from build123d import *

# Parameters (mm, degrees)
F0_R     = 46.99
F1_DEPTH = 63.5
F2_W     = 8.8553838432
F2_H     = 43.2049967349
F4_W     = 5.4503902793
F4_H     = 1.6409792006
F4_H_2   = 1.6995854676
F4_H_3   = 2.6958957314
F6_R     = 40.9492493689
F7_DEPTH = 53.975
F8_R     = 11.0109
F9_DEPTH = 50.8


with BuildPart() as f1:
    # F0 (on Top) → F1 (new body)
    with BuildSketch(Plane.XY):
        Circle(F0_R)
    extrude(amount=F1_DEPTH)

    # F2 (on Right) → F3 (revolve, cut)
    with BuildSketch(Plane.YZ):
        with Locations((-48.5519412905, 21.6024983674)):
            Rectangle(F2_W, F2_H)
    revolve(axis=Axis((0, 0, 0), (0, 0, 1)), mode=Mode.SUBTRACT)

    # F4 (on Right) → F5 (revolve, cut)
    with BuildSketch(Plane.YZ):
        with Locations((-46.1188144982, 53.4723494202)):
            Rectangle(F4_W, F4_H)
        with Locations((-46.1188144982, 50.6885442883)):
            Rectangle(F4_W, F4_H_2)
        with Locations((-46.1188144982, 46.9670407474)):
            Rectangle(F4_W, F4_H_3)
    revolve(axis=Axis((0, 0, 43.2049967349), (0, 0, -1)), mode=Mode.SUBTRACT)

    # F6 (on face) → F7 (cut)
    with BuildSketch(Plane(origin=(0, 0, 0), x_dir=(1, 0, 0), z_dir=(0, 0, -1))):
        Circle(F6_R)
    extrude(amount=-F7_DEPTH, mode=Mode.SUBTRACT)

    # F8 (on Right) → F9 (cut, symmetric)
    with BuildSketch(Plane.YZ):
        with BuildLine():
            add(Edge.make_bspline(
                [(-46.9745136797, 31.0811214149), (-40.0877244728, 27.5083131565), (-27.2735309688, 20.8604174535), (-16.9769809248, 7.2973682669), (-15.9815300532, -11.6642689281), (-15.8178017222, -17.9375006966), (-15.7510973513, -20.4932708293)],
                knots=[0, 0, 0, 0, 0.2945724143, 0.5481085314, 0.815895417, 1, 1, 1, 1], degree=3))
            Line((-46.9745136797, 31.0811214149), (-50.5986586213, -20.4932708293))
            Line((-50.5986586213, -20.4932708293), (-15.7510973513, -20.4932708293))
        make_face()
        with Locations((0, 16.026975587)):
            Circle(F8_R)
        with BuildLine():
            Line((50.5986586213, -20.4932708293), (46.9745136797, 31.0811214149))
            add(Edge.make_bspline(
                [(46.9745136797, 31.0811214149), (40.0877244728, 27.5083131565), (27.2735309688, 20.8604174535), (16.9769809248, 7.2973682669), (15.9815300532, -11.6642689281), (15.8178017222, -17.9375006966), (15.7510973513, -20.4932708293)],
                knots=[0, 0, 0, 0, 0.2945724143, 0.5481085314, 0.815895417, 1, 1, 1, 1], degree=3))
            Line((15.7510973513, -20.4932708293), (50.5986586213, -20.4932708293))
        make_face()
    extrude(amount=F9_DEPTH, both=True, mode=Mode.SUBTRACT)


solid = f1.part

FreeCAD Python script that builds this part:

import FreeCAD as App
import Part
import Sketcher

V = App.Vector
Q = App.Units.Quantity

doc = App.newDocument("Part")
body = doc.addObject("PartDesign::Body", "Body")

# Sketch on XY plane
sketch1 = doc.addObject("Sketcher::SketchObject", "Sketch")
body.addObject(sketch1)
sketch1.AttachmentSupport = (doc.XY_Plane, [""])
sketch1.MapMode = "FlatFace"
sketch1.addGeometry(Part.Circle(V(0, 0, 0), V(0, 0, 1), 46.99), False)
sketch1.addConstraint(Sketcher.Constraint("Coincident", 0, 3, -1, 1))
sketch1.addConstraint(Sketcher.Constraint("Diameter", 0, Q("3.7 in")))
pad1 = doc.addObject("PartDesign::Pad", "Pad")
body.addObject(pad1)
pad1.Profile = sketch1
pad1.Length = Q("2.5 in")

# Sketch on YZ plane
sketch2 = doc.addObject("Sketcher::SketchObject", "Sketch001")
body.addObject(sketch2)
sketch2.AttachmentSupport = (doc.YZ_Plane, [""])
sketch2.MapMode = "FlatFace"
sketch2.addGeometry(Part.LineSegment(V(-52.979633, 43.204997, 0), V(-52.979633, 0, 0)), False)
sketch2.addGeometry(Part.LineSegment(V(-52.979633, 0, 0), V(-44.124249, 0, 0)), False)
sketch2.addGeometry(Part.LineSegment(V(-44.124249, 0, 0), V(-44.124249, 43.204997, 0)), False)
sketch2.addGeometry(Part.LineSegment(V(-44.124249, 43.204997, 0), V(-52.979633, 43.204997, 0)), False)
sketch2.addConstraint(Sketcher.Constraint("Coincident", 0, 2, 1, 1))
sketch2.addConstraint(Sketcher.Constraint("Coincident", 1, 2, 2, 1))
sketch2.addConstraint(Sketcher.Constraint("Coincident", 2, 2, 3, 1))
sketch2.addConstraint(Sketcher.Constraint("Coincident", 3, 2, 0, 1))
sketch2.addConstraint(Sketcher.Constraint("Vertical", 0))
sketch2.addConstraint(Sketcher.Constraint("Horizontal", 1))
sketch2.addConstraint(Sketcher.Constraint("Vertical", 2))
sketch2.addConstraint(Sketcher.Constraint("Horizontal", 3))
sketch2.addConstraint(Sketcher.Constraint("PointOnObject", 0, 2, -1))
sketch2.addConstraint(Sketcher.Constraint("DistanceX", 1, 1, 1, 2, Q("8.855384 mm")))
sketch2.addConstraint(Sketcher.Constraint("DistanceY", 0, 2, 0, 1, Q("43.204997 mm")))
sketch2.addConstraint(Sketcher.Constraint("DistanceX", 1, 2, -1, 1, Q("44.124249 mm")))
groove = doc.addObject("PartDesign::Groove", "Groove")
body.addObject(groove)
groove.Profile = sketch2
groove.ReferenceAxis = (sketch2, ["V_Axis"])
groove.Angle = 360

# Sketch on YZ plane
sketch3 = doc.addObject("Sketcher::SketchObject", "Sketch002")
body.addObject(sketch3)
sketch3.AttachmentSupport = (doc.YZ_Plane, [""])
sketch3.MapMode = "FlatFace"
sketch3.addGeometry(Part.LineSegment(V(-48.84401, 54.292839, 0), V(-48.84401, 52.65186, 0)), False)
sketch3.addGeometry(Part.LineSegment(V(-48.84401, 52.65186, 0), V(-43.393619, 52.65186, 0)), False)
sketch3.addGeometry(Part.LineSegment(V(-43.393619, 52.65186, 0), V(-43.393619, 54.292839, 0)), False)
sketch3.addGeometry(Part.LineSegment(V(-43.393619, 54.292839, 0), V(-48.84401, 54.292839, 0)), False)
sketch3.addGeometry(Part.LineSegment(V(-48.84401, 51.538337, 0), V(-48.84401, 49.838752, 0)), False)
sketch3.addGeometry(Part.LineSegment(V(-48.84401, 49.838752, 0), V(-43.393619, 49.838752, 0)), False)
sketch3.addGeometry(Part.LineSegment(V(-43.393619, 49.838752, 0), V(-43.393619, 51.538337, 0)), False)
sketch3.addGeometry(Part.LineSegment(V(-43.393619, 51.538337, 0), V(-48.84401, 51.538337, 0)), False)
sketch3.addGeometry(Part.LineSegment(V(-48.84401, 48.314989, 0), V(-48.84401, 45.619093, 0)), False)
sketch3.addGeometry(Part.LineSegment(V(-48.84401, 45.619093, 0), V(-43.393619, 45.619093, 0)), False)
sketch3.addGeometry(Part.LineSegment(V(-43.393619, 45.619093, 0), V(-43.393619, 48.314989, 0)), False)
sketch3.addGeometry(Part.LineSegment(V(-43.393619, 48.314989, 0), V(-48.84401, 48.314989, 0)), False)
sketch3.addConstraint(Sketcher.Constraint("Coincident", 0, 2, 1, 1))
sketch3.addConstraint(Sketcher.Constraint("Coincident", 1, 2, 2, 1))
sketch3.addConstraint(Sketcher.Constraint("Coincident", 2, 2, 3, 1))
sketch3.addConstraint(Sketcher.Constraint("Coincident", 3, 2, 0, 1))
sketch3.addConstraint(Sketcher.Constraint("Coincident", 4, 2, 5, 1))
sketch3.addConstraint(Sketcher.Constraint("Coincident", 5, 2, 6, 1))
sketch3.addConstraint(Sketcher.Constraint("Coincident", 6, 2, 7, 1))
sketch3.addConstraint(Sketcher.Constraint("Coincident", 7, 2, 4, 1))
sketch3.addConstraint(Sketcher.Constraint("Coincident", 8, 2, 9, 1))
sketch3.addConstraint(Sketcher.Constraint("Coincident", 9, 2, 10, 1))
sketch3.addConstraint(Sketcher.Constraint("Coincident", 10, 2, 11, 1))
sketch3.addConstraint(Sketcher.Constraint("Coincident", 11, 2, 8, 1))
sketch3.addConstraint(Sketcher.Constraint("Vertical", 0))
sketch3.addConstraint(Sketcher.Constraint("Horizontal", 1))
sketch3.addConstraint(Sketcher.Constraint("Vertical", 2))
sketch3.addConstraint(Sketcher.Constraint("Horizontal", 3))
sketch3.addConstraint(Sketcher.Constraint("Vertical", 4))
sketch3.addConstraint(Sketcher.Constraint("Horizontal", 5))
sketch3.addConstraint(Sketcher.Constraint("Vertical", 6))
sketch3.addConstraint(Sketcher.Constraint("Horizontal", 7))
sketch3.addConstraint(Sketcher.Constraint("Vertical", 8))
sketch3.addConstraint(Sketcher.Constraint("Horizontal", 9))
sketch3.addConstraint(Sketcher.Constraint("Vertical", 10))
sketch3.addConstraint(Sketcher.Constraint("Horizontal", 11))
sketch3.addConstraint(Sketcher.Constraint("Vertical", 3, 2, 4, 2))
sketch3.addConstraint(Sketcher.Constraint("Vertical", 2, 2, 5, 2))
sketch3.addConstraint(Sketcher.Constraint("Vertical", 7, 2, 8, 2))
sketch3.addConstraint(Sketcher.Constraint("Vertical", 6, 2, 9, 2))
sketch3.addConstraint(Sketcher.Constraint("DistanceX", 1, 1, 1, 2, Q("5.45039 mm")))
sketch3.addConstraint(Sketcher.Constraint("DistanceY", 0, 2, 0, 1, Q("1.640979 mm")))
sketch3.addConstraint(Sketcher.Constraint("DistanceY", 6, 2, 2, 2, Q("2.754502 mm")))
sketch3.addConstraint(Sketcher.Constraint("DistanceY", 4, 2, 4, 1, Q("1.699585 mm")))
sketch3.addConstraint(Sketcher.Constraint("DistanceY", 8, 2, 8, 1, Q("2.695896 mm")))
sketch3.addConstraint(Sketcher.Constraint("DistanceX", 0, 2, -1, 1, Q("48.84401 mm")))
sketch3.addConstraint(Sketcher.Constraint("DistanceY", -1, 1, 0, 2, Q("52.65186 mm")))
sketch3.addConstraint(Sketcher.Constraint("DistanceY", -1, 1, 10, 2, Q("48.314989 mm")))
groove2 = doc.addObject("PartDesign::Groove", "Groove001")
body.addObject(groove2)
groove2.Profile = sketch3
groove2.ReferenceAxis = (sketch3, ["V_Axis"])
groove2.Angle = 360

# Sketch on XY plane
sketch4 = doc.addObject("Sketcher::SketchObject", "Sketch003")
body.addObject(sketch4)
sketch4.AttachmentSupport = (doc.XY_Plane, [""])
sketch4.MapMode = "FlatFace"
sketch4.addGeometry(Part.Circle(V(0, 0, 0), V(0, 0, 1), 40.949249), False)
sketch4.addConstraint(Sketcher.Constraint("Coincident", 0, 3, -1, 1))
sketch4.addConstraint(Sketcher.Constraint("Diameter", 0, Q("81.898499 mm")))
pocket1 = doc.addObject("PartDesign::Pocket", "Pocket")
body.addObject(pocket1)
pocket1.Profile = sketch4
pocket1.Length = Q("2.125 in")
pocket1.Reversed = True

# Sketch on YZ plane
sketch5 = doc.addObject("Sketcher::SketchObject", "Sketch004")
body.addObject(sketch5)
sketch5.AttachmentSupport = (doc.YZ_Plane, [""])
sketch5.MapMode = "FlatFace"
sketch5.addGeometry(Part.BSplineCurve([V(-46.974514, 31.081121, 0), V(-40.087724, 27.508313, 0), V(-27.273531, 20.860417, 0), V(-16.976981, 7.297368, 0), V(-15.98153, -11.664269, 0), V(-15.817802, -17.937501, 0), V(-15.751097, -20.493271, 0)], [4, 1, 1, 1, 4], [0, 0.294572414, 0.548108531, 0.815895417, 1], False, 3, [1, 1, 1, 1, 1, 1, 1], False), False)
sketch5.addGeometry(Part.LineSegment(V(-46.974514, 31.081121, 0), V(-50.598659, -20.493271, 0)), False)
sketch5.addGeometry(Part.LineSegment(V(-50.598659, -20.493271, 0), V(-15.751097, -20.493271, 0)), False)
sketch5.addGeometry(Part.Circle(V(0, 16.026976, 0), V(0, 0, 1), 11.0109), False)
sketch5.addGeometry(Part.LineSegment(V(50.598659, -20.493271, 0), V(46.974514, 31.081121, 0)), False)
sketch5.addGeometry(Part.BSplineCurve([V(46.974514, 31.081121, 0), V(40.087724, 27.508313, 0), V(27.273531, 20.860417, 0), V(16.976981, 7.297368, 0), V(15.98153, -11.664269, 0), V(15.817802, -17.937501, 0), V(15.751097, -20.493271, 0)], [4, 1, 1, 1, 4], [0, 0.294572414, 0.548108531, 0.815895417, 1], False, 3, [1, 1, 1, 1, 1, 1, 1], False), False)
sketch5.addGeometry(Part.LineSegment(V(15.751097, -20.493271, 0), V(50.598659, -20.493271, 0)), False)
sketch5.addConstraint(Sketcher.Constraint("Block", 0))
sketch5.addConstraint(Sketcher.Constraint("Block", 5))
sketch5.addConstraint(Sketcher.Constraint("Coincident", 0, 1, 1, 1))
sketch5.addConstraint(Sketcher.Constraint("Coincident", 1, 2, 2, 1))
sketch5.addConstraint(Sketcher.Constraint("Coincident", 2, 2, 0, 2))
sketch5.addConstraint(Sketcher.Constraint("Coincident", 4, 2, 5, 1))
sketch5.addConstraint(Sketcher.Constraint("Coincident", 5, 2, 6, 1))
sketch5.addConstraint(Sketcher.Constraint("Coincident", 6, 2, 4, 1))
sketch5.addConstraint(Sketcher.Constraint("Horizontal", 2))
sketch5.addConstraint(Sketcher.Constraint("Horizontal", 6))
sketch5.addConstraint(Sketcher.Constraint("PointOnObject", 3, 3, -2))
sketch5.addConstraint(Sketcher.Constraint("Equal", 2, 6))
sketch5.addConstraint(Sketcher.Constraint("Diameter", 3, Q("0.867 in")))
sketch5.addConstraint(Sketcher.Constraint("DistanceX", 2, 1, 2, 2, Q("34.847561 mm")))
sketch5.addConstraint(Sketcher.Constraint("DistanceY", -1, 1, 3, 3, Q("16.026976 mm")))
pocket2 = doc.addObject("PartDesign::Pocket", "Pocket001")
body.addObject(pocket2)
pocket2.Profile = sketch5
pocket2.Length = Q("4 in")
pocket2.Midplane = True

doc.recompute()
